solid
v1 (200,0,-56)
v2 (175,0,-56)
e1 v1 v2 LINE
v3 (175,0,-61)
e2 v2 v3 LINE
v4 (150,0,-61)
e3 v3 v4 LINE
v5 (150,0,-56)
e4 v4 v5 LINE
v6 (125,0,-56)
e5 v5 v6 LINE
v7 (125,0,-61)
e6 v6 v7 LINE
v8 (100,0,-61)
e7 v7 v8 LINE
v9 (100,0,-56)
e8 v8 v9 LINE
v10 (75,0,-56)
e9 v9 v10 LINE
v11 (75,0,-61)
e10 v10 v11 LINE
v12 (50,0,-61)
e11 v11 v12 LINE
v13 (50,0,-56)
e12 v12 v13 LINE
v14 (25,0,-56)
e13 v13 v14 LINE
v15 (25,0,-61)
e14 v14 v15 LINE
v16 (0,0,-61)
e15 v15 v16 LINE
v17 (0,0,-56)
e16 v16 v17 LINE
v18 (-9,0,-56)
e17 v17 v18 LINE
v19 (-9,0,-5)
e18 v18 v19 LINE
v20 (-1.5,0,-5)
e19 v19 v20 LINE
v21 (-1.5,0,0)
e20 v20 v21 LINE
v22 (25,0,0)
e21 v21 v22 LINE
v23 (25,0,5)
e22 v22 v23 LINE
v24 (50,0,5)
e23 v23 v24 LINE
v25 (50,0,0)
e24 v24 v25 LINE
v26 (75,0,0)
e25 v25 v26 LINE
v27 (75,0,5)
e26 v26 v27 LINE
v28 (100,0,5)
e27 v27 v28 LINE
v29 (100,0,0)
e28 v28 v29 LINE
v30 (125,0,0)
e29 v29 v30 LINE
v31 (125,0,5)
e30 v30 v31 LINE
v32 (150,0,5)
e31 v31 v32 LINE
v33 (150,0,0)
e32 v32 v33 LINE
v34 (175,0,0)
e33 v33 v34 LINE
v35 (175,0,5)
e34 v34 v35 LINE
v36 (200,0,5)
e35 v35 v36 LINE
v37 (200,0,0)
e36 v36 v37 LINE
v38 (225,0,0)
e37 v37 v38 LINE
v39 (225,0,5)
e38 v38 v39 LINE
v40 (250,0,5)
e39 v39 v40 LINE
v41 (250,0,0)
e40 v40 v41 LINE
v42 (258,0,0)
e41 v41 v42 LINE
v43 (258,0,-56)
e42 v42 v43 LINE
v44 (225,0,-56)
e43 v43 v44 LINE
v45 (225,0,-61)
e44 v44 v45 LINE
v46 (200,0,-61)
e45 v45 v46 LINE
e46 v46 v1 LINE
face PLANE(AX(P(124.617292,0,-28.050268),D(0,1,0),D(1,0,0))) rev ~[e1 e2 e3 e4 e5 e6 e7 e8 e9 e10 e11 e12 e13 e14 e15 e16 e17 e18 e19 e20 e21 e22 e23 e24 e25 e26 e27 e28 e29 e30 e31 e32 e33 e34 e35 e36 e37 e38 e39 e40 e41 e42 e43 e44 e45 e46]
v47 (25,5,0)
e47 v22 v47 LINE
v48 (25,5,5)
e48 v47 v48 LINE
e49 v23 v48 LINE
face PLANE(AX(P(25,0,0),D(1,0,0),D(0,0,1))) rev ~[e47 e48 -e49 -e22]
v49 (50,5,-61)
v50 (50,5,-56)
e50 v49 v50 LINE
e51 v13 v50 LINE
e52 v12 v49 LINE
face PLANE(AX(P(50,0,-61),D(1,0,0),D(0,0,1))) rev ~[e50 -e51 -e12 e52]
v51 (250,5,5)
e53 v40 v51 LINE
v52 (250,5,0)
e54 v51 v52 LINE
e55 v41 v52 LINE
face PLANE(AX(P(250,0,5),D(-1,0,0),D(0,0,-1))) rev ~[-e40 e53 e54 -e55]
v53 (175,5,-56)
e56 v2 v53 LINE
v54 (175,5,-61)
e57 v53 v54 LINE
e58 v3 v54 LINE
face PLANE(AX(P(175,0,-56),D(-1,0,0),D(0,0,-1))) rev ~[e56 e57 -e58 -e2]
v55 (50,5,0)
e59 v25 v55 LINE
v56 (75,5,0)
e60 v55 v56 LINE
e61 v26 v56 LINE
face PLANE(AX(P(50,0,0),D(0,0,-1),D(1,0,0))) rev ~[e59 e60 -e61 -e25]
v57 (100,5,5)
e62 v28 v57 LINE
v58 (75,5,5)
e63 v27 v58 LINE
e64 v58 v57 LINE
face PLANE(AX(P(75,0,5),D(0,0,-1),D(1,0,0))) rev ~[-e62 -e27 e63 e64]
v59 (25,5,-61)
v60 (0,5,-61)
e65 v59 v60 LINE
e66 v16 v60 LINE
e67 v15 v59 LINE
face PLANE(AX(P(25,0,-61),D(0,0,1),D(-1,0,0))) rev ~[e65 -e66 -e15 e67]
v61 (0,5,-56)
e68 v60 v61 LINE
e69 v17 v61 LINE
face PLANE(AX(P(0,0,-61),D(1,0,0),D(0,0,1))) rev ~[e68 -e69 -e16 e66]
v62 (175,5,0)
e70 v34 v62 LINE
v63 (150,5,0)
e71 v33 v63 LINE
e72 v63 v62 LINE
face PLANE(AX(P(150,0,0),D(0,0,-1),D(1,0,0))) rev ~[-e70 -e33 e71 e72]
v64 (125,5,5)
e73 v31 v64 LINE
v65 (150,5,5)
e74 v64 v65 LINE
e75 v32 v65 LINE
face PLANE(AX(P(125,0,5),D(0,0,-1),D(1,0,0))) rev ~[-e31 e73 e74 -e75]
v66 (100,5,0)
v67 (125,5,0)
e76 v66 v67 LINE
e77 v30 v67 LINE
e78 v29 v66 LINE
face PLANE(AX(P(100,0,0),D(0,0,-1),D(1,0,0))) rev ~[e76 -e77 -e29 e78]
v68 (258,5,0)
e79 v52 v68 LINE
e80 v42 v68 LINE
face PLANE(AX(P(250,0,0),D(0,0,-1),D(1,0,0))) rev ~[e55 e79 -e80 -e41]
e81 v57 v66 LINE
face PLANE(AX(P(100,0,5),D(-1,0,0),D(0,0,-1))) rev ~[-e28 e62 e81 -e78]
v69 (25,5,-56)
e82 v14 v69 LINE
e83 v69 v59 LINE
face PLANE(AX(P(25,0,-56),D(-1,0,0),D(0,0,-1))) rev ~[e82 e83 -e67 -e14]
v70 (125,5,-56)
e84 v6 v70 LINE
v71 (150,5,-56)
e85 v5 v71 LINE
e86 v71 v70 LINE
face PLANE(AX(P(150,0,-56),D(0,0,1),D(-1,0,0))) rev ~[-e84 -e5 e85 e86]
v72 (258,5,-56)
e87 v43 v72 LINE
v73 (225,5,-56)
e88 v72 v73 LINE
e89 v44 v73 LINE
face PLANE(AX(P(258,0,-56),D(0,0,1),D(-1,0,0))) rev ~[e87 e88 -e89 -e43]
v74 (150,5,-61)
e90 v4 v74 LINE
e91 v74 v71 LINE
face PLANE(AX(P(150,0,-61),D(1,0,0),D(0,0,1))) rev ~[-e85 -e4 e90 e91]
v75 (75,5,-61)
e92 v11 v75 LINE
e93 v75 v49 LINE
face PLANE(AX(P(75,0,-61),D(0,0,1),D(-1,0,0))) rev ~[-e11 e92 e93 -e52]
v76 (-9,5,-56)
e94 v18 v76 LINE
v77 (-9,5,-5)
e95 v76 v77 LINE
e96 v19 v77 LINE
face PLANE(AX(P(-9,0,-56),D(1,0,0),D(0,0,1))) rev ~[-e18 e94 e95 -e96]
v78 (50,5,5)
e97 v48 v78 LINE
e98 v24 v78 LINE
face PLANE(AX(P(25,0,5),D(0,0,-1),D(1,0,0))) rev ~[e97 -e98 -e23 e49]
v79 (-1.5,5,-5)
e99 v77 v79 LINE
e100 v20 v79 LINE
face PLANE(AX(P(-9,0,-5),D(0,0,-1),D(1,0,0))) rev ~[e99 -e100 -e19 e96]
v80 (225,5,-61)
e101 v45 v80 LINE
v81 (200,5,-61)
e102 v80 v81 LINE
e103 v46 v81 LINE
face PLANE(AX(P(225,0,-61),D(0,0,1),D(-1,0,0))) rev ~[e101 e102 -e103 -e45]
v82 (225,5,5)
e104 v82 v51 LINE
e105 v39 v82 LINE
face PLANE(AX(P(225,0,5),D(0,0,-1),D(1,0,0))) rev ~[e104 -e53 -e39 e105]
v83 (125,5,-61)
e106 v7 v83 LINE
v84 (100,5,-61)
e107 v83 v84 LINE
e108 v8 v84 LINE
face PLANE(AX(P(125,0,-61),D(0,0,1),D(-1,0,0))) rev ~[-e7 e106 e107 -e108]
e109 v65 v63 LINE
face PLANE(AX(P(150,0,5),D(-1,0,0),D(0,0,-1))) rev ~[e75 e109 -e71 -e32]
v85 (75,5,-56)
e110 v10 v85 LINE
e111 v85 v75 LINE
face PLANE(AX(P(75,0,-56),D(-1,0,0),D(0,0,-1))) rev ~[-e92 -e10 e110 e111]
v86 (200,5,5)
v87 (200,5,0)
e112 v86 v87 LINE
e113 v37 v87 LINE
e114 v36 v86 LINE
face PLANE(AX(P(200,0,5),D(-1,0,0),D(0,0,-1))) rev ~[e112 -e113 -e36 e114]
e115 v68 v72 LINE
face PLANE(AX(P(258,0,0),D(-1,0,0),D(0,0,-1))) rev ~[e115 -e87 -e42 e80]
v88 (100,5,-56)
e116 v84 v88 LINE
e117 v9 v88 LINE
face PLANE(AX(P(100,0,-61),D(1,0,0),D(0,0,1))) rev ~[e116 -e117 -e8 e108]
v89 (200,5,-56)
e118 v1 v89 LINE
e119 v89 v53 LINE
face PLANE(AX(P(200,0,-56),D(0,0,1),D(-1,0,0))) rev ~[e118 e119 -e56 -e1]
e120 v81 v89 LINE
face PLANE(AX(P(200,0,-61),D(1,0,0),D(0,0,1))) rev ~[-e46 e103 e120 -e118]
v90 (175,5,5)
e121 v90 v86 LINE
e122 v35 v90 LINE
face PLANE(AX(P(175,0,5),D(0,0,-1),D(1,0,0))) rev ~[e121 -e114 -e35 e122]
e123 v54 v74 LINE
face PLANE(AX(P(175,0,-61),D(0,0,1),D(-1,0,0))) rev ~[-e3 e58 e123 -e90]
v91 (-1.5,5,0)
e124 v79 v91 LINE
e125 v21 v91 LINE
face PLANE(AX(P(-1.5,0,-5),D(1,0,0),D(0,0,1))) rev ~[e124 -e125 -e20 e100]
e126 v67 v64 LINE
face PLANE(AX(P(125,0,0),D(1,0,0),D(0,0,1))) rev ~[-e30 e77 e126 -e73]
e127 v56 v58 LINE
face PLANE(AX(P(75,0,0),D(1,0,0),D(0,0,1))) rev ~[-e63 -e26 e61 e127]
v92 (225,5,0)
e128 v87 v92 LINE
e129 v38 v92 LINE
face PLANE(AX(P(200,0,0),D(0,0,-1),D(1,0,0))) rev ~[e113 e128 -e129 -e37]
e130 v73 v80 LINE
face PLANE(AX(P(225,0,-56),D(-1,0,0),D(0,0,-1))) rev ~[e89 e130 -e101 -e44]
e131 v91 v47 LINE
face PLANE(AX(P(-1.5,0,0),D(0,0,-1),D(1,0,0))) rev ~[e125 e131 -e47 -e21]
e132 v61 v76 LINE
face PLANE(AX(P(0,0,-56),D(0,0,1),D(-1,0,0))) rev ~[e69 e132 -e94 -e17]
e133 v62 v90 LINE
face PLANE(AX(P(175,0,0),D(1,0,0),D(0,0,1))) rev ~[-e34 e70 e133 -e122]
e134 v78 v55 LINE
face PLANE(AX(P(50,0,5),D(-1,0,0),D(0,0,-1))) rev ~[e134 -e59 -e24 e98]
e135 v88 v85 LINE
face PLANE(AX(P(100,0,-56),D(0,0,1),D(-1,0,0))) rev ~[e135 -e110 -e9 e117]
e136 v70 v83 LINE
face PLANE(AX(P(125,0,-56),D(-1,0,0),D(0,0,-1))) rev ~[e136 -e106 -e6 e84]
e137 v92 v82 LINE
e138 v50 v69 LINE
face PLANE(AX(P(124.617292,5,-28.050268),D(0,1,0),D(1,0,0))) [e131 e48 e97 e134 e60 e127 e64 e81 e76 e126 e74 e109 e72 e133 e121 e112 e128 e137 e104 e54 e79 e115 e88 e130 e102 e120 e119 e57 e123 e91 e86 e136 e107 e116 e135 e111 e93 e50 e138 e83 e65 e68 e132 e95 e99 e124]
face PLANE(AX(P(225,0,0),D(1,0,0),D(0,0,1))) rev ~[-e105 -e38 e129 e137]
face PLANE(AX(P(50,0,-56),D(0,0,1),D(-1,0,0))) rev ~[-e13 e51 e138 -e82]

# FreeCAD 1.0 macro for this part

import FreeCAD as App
import Part
import Sketcher
Q = App.Units.Quantity


def add_polygon(sketch, points):
    """Adds a closed chain of lines whose ends are joined by coincident constraints."""
    first, n = sketch.GeometryCount, len(points)
    for a, b in zip(points, points[1:] + points[:1]):
        sketch.addGeometry(Part.LineSegment(App.Vector(*a, 0), App.Vector(*b, 0)), False)
    for i in range(n):
        sketch.addConstraint(Sketcher.Constraint("Coincident", first + i, 2, first + (i + 1) % n, 1))

doc = App.newDocument("Part")
body = doc.addObject("PartDesign::Body", "Body")

# Sketch on XZ plane
sketch1 = body.newObject("Sketcher::SketchObject", "Sketch")
sketch1.AttachmentSupport = (doc.getObject("XZ_Plane"), [""])
sketch1.MapMode = "FlatFace"
add_polygon(sketch1, [(50, -56), (25, -56), (25, -61), (0, -61), (0, -56), (-9, -56), (-9, -5), (-2, -5), (-2, 0), (25, 0), (25, 5), (50, 5), (50, 0), (75, 0), (75, 5), (100, 5), (100, 0), (125, 0), (125, 5), (150, 5), (150, 0), (175, 0), (175, 5), (200, 5), (200, 0), (225, 0), (225, 5), (250, 5), (250, 0), (258, 0), (258, -56), (225, -56), (225, -61), (200, -61), (200, -56), (175, -56), (175, -61), (150, -61), (150, -56), (125, -56), (125, -61), (100, -61), (100, -56), (75, -56), (75, -61), (50, -61)])  # lines 0-45
sketch1.addConstraint([
    Sketcher.Constraint("Horizontal", 0),
    Sketcher.Constraint("Vertical", 1),
    Sketcher.Constraint("Horizontal", 2),
    Sketcher.Constraint("Vertical", 3),
    Sketcher.Constraint("Horizontal", 4),
    Sketcher.Constraint("Vertical", 5),
    Sketcher.Constraint("Horizontal", 6),
    Sketcher.Constraint("Vertical", 7),
    Sketcher.Constraint("Horizontal", 8),
    Sketcher.Constraint("Vertical", 9),
    Sketcher.Constraint("Horizontal", 10),
    Sketcher.Constraint("Vertical", 11),
    Sketcher.Constraint("Horizontal", 12),
    Sketcher.Constraint("Vertical", 13),
    Sketcher.Constraint("Horizontal", 14),
    Sketcher.Constraint("Vertical", 15),
    Sketcher.Constraint("Horizontal", 16),
    Sketcher.Constraint("Vertical", 17),
    Sketcher.Constraint("Horizontal", 18),
    Sketcher.Constraint("Vertical", 19),
    Sketcher.Constraint("Horizontal", 20),
    Sketcher.Constraint("Vertical", 21),
    Sketcher.Constraint("Horizontal", 22),
    Sketcher.Constraint("Vertical", 23),
    Sketcher.Constraint("Horizontal", 24),
    Sketcher.Constraint("Vertical", 25),
    Sketcher.Constraint("Horizontal", 26),
    Sketcher.Constraint("Vertical", 27),
    Sketcher.Constraint("Horizontal", 28),
    Sketcher.Constraint("Vertical", 29),
    Sketcher.Constraint("Horizontal", 30),
    Sketcher.Constraint("Vertical", 31),
    Sketcher.Constraint("Horizontal", 32),
    Sketcher.Constraint("Vertical", 33),
    Sketcher.Constraint("Horizontal", 34),
    Sketcher.Constraint("Vertical", 35),
    Sketcher.Constraint("Horizontal", 36),
    Sketcher.Constraint("Vertical", 37),
    Sketcher.Constraint("Horizontal", 38),
    Sketcher.Constraint("Vertical", 39),
    Sketcher.Constraint("Horizontal", 40),
    Sketcher.Constraint("Vertical", 41),
    Sketcher.Constraint("Horizontal", 42),
    Sketcher.Constraint("Vertical", 43),
    Sketcher.Constraint("Horizontal", 44),
    Sketcher.Constraint("Vertical", 45),
    Sketcher.Constraint("PointOnObject", 2, 2, -2),
    Sketcher.Constraint("PointOnObject", 7, 2, -1),
    Sketcher.Constraint("PointOnObject", 11, 2, -1),
    Sketcher.Constraint("PointOnObject", 15, 2, -1),
    Sketcher.Constraint("PointOnObject", 19, 2, -1),
    Sketcher.Constraint("PointOnObject", 23, 2, -1),
    Sketcher.Constraint("PointOnObject", 27, 2, -1),
    Sketcher.Constraint("Horizontal", 0, 2, 3, 2),
    Sketcher.Constraint("Horizontal", 10, 2, 13, 2),
    Sketcher.Constraint("Horizontal", 14, 2, 17, 2),
    Sketcher.Constraint("Horizontal", 18, 2, 21, 2),
    Sketcher.Constraint("Horizontal", 22, 2, 25, 2),
    Sketcher.Constraint("Horizontal", 4, 2, 29, 2),
    Sketcher.Constraint("Horizontal", 2, 2, 31, 2),
    Sketcher.Constraint("Horizontal", 30, 2, 33, 2),
    Sketcher.Constraint("Horizontal", 32, 2, 35, 2),
    Sketcher.Constraint("Horizontal", 34, 2, 37, 2),
    Sketcher.Constraint("Horizontal", 36, 2, 39, 2),
    Sketcher.Constraint("Horizontal", 38, 2, 41, 2),
    Sketcher.Constraint("Horizontal", 40, 2, 43, 2),
    Sketcher.Constraint("Vertical", 1, 2, 8, 2),
    Sketcher.Constraint("Vertical", 25, 2, 30, 2),
    Sketcher.Constraint("Vertical", 23, 2, 32, 2),
    Sketcher.Constraint("Vertical", 21, 2, 34, 2),
    Sketcher.Constraint("Vertical", 19, 2, 36, 2),
    Sketcher.Constraint("Vertical", 17, 2, 38, 2),
    Sketcher.Constraint("Vertical", 15, 2, 40, 2),
    Sketcher.Constraint("Vertical", 13, 2, 42, 2),
    Sketcher.Constraint("Vertical", 11, 2, 44, 2),
    Sketcher.Constraint("Equal", 0, 2),
    Sketcher.Constraint("Equal", 10, 12),
    Sketcher.Constraint("Equal", 12, 14),
    Sketcher.Constraint("Equal", 14, 16),
    Sketcher.Constraint("Equal", 16, 18),
    Sketcher.Constraint("Equal", 18, 20),
    Sketcher.Constraint("Equal", 20, 22),
    Sketcher.Constraint("Equal", 22, 24),
    Sketcher.Constraint("Equal", 24, 26),
    Sketcher.Constraint("Equal", 3, 7),
    Sketcher.Constraint("Equal", 7, 9),
    Sketcher.Constraint("DistanceX", 0, 2, 0, 1, Q("25 mm")),
    Sketcher.Constraint("DistanceX", 4, 2, 4, 1, Q("9 mm")),
    Sketcher.Constraint("DistanceX", 28, 1, 28, 2, Q("8 mm")),
    Sketcher.Constraint("DistanceY", 1, 2, 1, 1, Q("5 mm")),
    Sketcher.Constraint("DistanceY", 5, 1, 5, 2, Q("51 mm")),
    Sketcher.Constraint("DistanceX", 6, 1, 6, 2, Q("7.5 mm")),
])
pad1 = body.newObject("PartDesign::Pad", "Pad")
pad1.Profile = sketch1
pad1.Length = 5
pad1.Reversed = True

doc.recompute()
